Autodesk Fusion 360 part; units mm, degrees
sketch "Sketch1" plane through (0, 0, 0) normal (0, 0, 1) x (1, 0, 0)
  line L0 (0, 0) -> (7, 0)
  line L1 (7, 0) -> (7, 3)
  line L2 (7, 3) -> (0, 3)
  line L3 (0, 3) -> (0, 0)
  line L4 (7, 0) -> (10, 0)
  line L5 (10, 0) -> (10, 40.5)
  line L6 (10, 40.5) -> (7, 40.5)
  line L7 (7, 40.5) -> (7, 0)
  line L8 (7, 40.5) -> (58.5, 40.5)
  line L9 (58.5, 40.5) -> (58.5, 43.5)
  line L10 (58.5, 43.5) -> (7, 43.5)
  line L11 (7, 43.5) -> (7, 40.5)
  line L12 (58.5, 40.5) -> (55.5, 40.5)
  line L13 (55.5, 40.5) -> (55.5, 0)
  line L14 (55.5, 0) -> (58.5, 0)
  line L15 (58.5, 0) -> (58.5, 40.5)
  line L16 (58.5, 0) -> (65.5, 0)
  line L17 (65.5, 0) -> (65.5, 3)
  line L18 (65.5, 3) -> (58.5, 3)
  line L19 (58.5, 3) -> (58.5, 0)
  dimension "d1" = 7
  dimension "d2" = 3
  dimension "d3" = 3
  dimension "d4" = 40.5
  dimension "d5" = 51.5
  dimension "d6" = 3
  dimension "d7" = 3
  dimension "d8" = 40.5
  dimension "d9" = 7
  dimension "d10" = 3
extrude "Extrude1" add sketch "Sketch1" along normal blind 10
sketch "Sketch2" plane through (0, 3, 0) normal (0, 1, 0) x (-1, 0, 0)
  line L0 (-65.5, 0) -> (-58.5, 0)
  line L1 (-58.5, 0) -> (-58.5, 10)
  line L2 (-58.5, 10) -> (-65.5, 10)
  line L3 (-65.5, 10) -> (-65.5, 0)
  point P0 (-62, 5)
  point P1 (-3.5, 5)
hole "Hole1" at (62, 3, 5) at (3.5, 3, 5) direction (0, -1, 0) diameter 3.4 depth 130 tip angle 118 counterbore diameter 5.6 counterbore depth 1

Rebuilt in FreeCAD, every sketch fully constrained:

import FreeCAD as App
import Part
import Sketcher

V = App.Vector
Q = App.Units.Quantity


def add_polygon(sketch, points):
    """Adds a closed chain of lines whose ends are joined by coincident constraints."""
    first, n = sketch.GeometryCount, len(points)
    for a, b in zip(points, points[1:] + points[:1]):
        sketch.addGeometry(Part.LineSegment(App.Vector(*a, 0), App.Vector(*b, 0)), False)
    for i in range(n):
        sketch.addConstraint(Sketcher.Constraint("Coincident", first + i, 2, first + (i + 1) % n, 1))

doc = App.newDocument("Part")
body = doc.addObject("PartDesign::Body", "Body")

sketch1 = doc.addObject("Sketcher::SketchObject", "Sketch")
body.addObject(sketch1)
sketch1.AttachmentSupport = (doc.XY_Plane, [""])
sketch1.MapMode = "FlatFace"
add_polygon(sketch1, [(0, 3), (0, 0), (10, 0), (10, 40.5), (55.5, 40.5), (55.5, 0), (65.5, 0), (65.5, 3), (58.5, 3), (58.5, 43.5), (7, 43.5), (7, 3)])
sketch1.addConstraint([
    Sketcher.Constraint("Vertical", 0),
    Sketcher.Constraint("Horizontal", 1),
    Sketcher.Constraint("Vertical", 2),
    Sketcher.Constraint("Horizontal", 3),
    Sketcher.Constraint("Vertical", 4),
    Sketcher.Constraint("Horizontal", 5),
    Sketcher.Constraint("Vertical", 6),
    Sketcher.Constraint("Horizontal", 7),
    Sketcher.Constraint("Vertical", 8),
    Sketcher.Constraint("Horizontal", 9),
    Sketcher.Constraint("Vertical", 10),
    Sketcher.Constraint("Horizontal", 11),
    Sketcher.Constraint("Coincident", 0, 2, -1, 1),
    Sketcher.Constraint("PointOnObject", 4, 2, -1),
    Sketcher.Constraint("Horizontal", 7, 2, 10, 2),
    Sketcher.Constraint("Equal", 1, 5),
    Sketcher.Constraint("Equal", 7, 11),
    Sketcher.Constraint("Equal", 4, 8),
    Sketcher.Constraint("DistanceX", 7, 2, 7, 1, Q("7 mm")),
    Sketcher.Constraint("DistanceY", 0, 2, 0, 1, Q("3 mm")),
    Sketcher.Constraint("DistanceX", 9, 2, 9, 1, Q("51.5 mm")),
    Sketcher.Constraint("DistanceY", 2, 1, 2, 2, Q("40.5 mm")),
    Sketcher.Constraint("DistanceX", 4, 2, 7, 2, Q("3 mm")),
])
pad1 = doc.addObject("PartDesign::Pad", "Pad")
body.addObject(pad1)
pad1.Profile = sketch1
pad1.Length = 10

sketch2 = doc.addObject("Sketcher::SketchObject", "Sketch001")
body.addObject(sketch2)
sketch2.AttachmentSupport = (doc.XZ_Plane, [""])
sketch2.MapMode = "FlatFace"
sketch2.AttachmentOffset = App.Placement(V(0, 0, -3), App.Rotation())
sketch2.addGeometry([
    Part.Circle(V(62, 5, 0), V(0, 0, 1), 1.7),
    Part.Circle(V(3.5, 5, 0), V(0, 0, 1), 1.7),
], False)
sketch2.addConstraint([
    Sketcher.Constraint("Equal", 0, 1),
    Sketcher.Constraint("Horizontal", 0, 3, 1, 3),
    Sketcher.Constraint("Diameter", 0, Q("3.4 mm")),
    Sketcher.Constraint("DistanceX", -1, 1, 0, 3, Q("62 mm")),
    Sketcher.Constraint("DistanceY", -1, 1, 0, 3, Q("5 mm")),
    Sketcher.Constraint("DistanceX", -1, 1, 1, 3, Q("3.5 mm")),
])
doc.recompute()
hole = doc.addObject("PartDesign::Hole", "Hole")
body.addObject(hole)
hole.Profile = sketch2
hole.ThreadType = "None"
hole.Diameter = 3.4
hole.DepthType = "Dimension"
hole.Depth = 130
hole.DrillPoint = "Angled"
hole.DrillPointAngle = 118
hole.HoleCutType = "Counterbore"
hole.HoleCutDiameter = 5.6
hole.HoleCutDepth = 1
hole.Reversed = True

doc.recompute()
